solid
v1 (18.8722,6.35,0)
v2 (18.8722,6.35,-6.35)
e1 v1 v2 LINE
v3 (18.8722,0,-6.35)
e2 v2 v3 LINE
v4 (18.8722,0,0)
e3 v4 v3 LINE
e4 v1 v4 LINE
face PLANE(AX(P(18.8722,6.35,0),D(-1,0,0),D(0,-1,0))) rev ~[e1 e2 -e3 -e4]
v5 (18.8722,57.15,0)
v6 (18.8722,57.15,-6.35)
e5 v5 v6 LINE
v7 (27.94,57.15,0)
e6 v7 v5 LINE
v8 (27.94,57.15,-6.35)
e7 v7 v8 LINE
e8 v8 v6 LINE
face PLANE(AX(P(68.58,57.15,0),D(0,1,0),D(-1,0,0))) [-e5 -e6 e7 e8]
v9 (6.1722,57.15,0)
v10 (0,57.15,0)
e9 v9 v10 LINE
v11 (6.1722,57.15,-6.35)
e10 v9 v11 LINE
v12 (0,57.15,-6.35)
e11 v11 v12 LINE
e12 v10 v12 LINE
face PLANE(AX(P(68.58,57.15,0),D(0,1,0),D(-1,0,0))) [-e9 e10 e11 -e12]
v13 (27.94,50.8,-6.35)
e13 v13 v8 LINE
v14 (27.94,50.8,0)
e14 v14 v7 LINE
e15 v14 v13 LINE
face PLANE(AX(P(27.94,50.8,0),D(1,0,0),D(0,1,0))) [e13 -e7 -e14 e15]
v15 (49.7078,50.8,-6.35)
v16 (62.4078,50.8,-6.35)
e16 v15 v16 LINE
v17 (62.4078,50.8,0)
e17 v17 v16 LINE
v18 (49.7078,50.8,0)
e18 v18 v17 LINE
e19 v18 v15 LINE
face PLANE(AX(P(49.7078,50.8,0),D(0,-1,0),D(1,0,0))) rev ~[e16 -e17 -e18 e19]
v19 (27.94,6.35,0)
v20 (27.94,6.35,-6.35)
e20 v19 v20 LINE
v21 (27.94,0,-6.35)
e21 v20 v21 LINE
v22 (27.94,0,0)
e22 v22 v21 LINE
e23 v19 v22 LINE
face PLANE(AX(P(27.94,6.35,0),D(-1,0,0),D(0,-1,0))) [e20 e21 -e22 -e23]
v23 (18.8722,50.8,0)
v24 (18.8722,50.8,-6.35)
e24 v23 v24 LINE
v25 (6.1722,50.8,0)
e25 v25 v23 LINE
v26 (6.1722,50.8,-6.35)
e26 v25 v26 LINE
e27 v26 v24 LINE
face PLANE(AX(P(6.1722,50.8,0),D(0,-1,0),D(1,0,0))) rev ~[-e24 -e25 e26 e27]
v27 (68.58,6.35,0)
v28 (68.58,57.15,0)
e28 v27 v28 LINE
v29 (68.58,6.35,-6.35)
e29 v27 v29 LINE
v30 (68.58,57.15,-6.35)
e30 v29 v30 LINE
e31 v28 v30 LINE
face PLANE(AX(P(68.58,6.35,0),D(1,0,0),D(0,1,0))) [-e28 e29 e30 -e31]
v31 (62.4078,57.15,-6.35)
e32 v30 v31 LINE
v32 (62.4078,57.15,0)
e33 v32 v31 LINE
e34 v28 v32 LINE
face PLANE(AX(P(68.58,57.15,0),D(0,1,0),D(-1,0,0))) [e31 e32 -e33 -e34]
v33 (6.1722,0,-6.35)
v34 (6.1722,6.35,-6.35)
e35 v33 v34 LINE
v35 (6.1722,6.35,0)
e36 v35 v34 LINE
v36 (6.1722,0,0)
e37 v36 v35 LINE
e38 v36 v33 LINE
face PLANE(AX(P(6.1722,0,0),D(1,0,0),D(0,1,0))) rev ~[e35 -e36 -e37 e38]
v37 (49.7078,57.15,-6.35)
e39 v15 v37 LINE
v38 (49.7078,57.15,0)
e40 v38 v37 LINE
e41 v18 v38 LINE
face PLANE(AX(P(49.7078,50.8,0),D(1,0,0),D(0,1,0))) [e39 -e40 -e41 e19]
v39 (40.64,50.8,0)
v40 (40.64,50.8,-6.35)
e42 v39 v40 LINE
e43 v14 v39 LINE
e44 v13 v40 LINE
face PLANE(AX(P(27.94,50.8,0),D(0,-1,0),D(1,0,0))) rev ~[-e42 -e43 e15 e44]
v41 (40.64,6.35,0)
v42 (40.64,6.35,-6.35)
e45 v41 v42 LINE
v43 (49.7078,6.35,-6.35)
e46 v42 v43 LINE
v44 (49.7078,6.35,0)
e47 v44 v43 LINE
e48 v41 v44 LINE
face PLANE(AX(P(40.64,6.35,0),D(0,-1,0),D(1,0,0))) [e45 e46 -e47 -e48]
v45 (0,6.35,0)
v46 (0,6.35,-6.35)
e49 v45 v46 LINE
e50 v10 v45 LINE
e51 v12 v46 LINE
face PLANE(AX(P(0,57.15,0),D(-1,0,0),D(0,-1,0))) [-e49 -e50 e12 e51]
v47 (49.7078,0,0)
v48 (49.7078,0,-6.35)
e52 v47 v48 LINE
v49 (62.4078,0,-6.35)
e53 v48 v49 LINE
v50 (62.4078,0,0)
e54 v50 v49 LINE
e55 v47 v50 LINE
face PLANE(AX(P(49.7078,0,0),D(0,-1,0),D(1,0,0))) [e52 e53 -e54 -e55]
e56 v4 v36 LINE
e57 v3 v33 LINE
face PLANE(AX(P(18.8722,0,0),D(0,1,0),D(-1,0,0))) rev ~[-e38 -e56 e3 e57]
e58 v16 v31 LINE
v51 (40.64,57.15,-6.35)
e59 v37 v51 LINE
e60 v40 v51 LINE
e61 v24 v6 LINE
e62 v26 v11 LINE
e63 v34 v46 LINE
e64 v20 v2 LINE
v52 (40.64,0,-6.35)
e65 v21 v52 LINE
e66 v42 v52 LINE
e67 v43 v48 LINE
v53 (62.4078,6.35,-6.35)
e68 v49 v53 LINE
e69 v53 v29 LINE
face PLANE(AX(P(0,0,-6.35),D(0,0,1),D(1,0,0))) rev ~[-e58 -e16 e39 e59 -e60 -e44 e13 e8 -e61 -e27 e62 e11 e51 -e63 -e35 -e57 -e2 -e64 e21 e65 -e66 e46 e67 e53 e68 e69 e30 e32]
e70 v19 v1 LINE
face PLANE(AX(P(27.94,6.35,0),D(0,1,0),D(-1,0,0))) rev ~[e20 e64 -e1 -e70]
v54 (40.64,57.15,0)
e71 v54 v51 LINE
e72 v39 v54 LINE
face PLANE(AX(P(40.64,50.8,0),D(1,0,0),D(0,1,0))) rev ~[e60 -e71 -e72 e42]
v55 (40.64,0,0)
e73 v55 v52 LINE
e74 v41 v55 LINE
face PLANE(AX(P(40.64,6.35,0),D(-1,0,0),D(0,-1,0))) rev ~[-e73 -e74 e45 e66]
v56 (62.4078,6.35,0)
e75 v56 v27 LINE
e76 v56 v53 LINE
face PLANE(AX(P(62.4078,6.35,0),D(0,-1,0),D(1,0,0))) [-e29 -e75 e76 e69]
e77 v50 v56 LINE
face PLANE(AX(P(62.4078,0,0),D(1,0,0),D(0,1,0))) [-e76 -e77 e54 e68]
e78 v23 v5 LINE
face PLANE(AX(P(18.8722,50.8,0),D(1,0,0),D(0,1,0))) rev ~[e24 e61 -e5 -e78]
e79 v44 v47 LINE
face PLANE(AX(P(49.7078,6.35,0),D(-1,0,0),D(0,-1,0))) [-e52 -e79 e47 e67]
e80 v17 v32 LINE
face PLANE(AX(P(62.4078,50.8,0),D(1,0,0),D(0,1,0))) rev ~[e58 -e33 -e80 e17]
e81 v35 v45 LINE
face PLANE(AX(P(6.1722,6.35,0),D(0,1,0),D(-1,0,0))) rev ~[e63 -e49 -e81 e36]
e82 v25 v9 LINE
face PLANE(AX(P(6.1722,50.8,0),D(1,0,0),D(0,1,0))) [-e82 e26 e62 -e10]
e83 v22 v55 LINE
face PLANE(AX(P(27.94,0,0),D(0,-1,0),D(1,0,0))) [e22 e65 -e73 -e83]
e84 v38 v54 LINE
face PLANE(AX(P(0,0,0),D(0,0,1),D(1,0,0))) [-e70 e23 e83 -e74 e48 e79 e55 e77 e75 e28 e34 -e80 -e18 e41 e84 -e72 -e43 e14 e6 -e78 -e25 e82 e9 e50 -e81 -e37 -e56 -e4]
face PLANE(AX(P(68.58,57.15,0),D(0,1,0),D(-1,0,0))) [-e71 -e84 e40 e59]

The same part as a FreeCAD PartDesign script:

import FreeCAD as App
import Part
import Sketcher

V = App.Vector
Q = App.Units.Quantity


def add_polygon(sketch, points):
    """Adds a closed chain of lines whose ends are joined by coincident constraints."""
    first, n = sketch.GeometryCount, len(points)
    for a, b in zip(points, points[1:] + points[:1]):
        sketch.addGeometry(Part.LineSegment(App.Vector(*a, 0), App.Vector(*b, 0)), False)
    for i in range(n):
        sketch.addConstraint(Sketcher.Constraint("Coincident", first + i, 2, first + (i + 1) % n, 1))

doc = App.newDocument("Part")
params = doc.addObject("Spreadsheet::Sheet", "Params")
for row, (alias, value) in enumerate([
    ("sketch1_height", "2 in"),
    ("sketch1_width", "2.7 in"),
    ("sketch1_width2", "0.5 in"),
    ("sketch1_height2", "0.25 in"),
    ("sketch1_width3", "0.243 in"),
    ("pad1_length", "0.25 in"),
    ("sketch2_width", "0.5 in"),
    ("sketch2_height", "0.25 in"),
    ("pocket1_length", "0.25 in"),
], start=1):
    params.set(f"A{row}", alias)
    params.set(f"B{row}", "=" + value)
    params.setAlias(f"B{row}", alias)

body = doc.addObject("PartDesign::Body", "Body")

sketch1 = body.newObject("Sketcher::SketchObject", "Sketch")
sketch1.AttachmentSupport = (doc.getObject("XY_Plane"), [""])
sketch1.MapMode = "FlatFace"
add_polygon(sketch1, [(62, 6), (69, 6), (69, 57), (0, 57), (0, 6), (6, 6), (6, 0), (19, 0), (19, 6), (28, 6), (28, 0), (41, 0), (41, 6), (50, 6), (50, 0), (62, 0)])
sketch1.addConstraint([
    Sketcher.Constraint("Horizontal", 0),
    Sketcher.Constraint("Vertical", 1),
    Sketcher.Constraint("Horizontal", 2),
    Sketcher.Constraint("Vertical", 3),
    Sketcher.Constraint("Horizontal", 4),
    Sketcher.Constraint("Vertical", 5),
    Sketcher.Constraint("Horizontal", 6),
    Sketcher.Constraint("Vertical", 7),
    Sketcher.Constraint("Horizontal", 8),
    Sketcher.Constraint("Vertical", 9),
    Sketcher.Constraint("Horizontal", 10),
    Sketcher.Constraint("Vertical", 11),
    Sketcher.Constraint("Horizontal", 12),
    Sketcher.Constraint("Vertical", 13),
    Sketcher.Constraint("Horizontal", 14),
    Sketcher.Constraint("Vertical", 15),
    Sketcher.Constraint("PointOnObject", 2, 2, -2),
    Sketcher.Constraint("PointOnObject", 5, 2, -1),
    Sketcher.Constraint("PointOnObject", 9, 2, -1),
    Sketcher.Constraint("PointOnObject", 13, 2, -1),
    Sketcher.Constraint("Horizontal", 0, 2, 3, 2),
    Sketcher.Constraint("Horizontal", 4, 2, 7, 2),
    Sketcher.Constraint("Horizontal", 8, 2, 11, 2),
    Sketcher.Constraint("Equal", 0, 4),
    Sketcher.Constraint("Equal", 6, 10),
    Sketcher.Constraint("Equal", 8, 12),
    Sketcher.Constraint("Equal", 10, 14),
    Sketcher.Constraint("DistanceY", 1, 1, 1, 2, Q("2 in")),
    Sketcher.Constraint("DistanceX", 2, 2, 2, 1, Q("2.7 in")),
    Sketcher.Constraint("DistanceX", 6, 1, 6, 2, Q("0.5 in")),
    Sketcher.Constraint("DistanceY", 5, 2, 5, 1, Q("0.25 in")),
    Sketcher.Constraint("DistanceX", 0, 1, 0, 2, Q("0.243 in")),
])
sketch1.setExpression("Constraints[43]", "Params.sketch1_height")
sketch1.setExpression("Constraints[44]", "Params.sketch1_width")
sketch1.setExpression("Constraints[45]", "Params.sketch1_width2")
sketch1.setExpression("Constraints[46]", "Params.sketch1_height2")
sketch1.setExpression("Constraints[47]", "Params.sketch1_width3")
pad1 = body.newObject("PartDesign::Pad", "Pad")
pad1.Profile = sketch1
pad1.setExpression("Length", "Params.pad1_length")
pad1.Reversed = True

sketch2 = body.newObject("Sketcher::SketchObject", "Sketch001")
sketch2.AttachmentSupport = (doc.getObject("XY_Plane"), [""])
sketch2.MapMode = "FlatFace"
add_polygon(sketch2, [(62, 57), (50, 57), (50, 51), (62, 51)])
add_polygon(sketch2, [(41, 57), (28, 57), (28, 51), (41, 51)])
add_polygon(sketch2, [(6, 57), (6, 51), (19, 51), (19, 57)])
sketch2.addConstraint([
    Sketcher.Constraint("Horizontal", 0),
    Sketcher.Constraint("Vertical", 1),
    Sketcher.Constraint("Horizontal", 2),
    Sketcher.Constraint("Vertical", 3),
    Sketcher.Constraint("Horizontal", 4),
    Sketcher.Constraint("Vertical", 5),
    Sketcher.Constraint("Horizontal", 6),
    Sketcher.Constraint("Vertical", 7),
    Sketcher.Constraint("Vertical", 8),
    Sketcher.Constraint("Horizontal", 9),
    Sketcher.Constraint("Vertical", 10),
    Sketcher.Constraint("Horizontal", 11),
    Sketcher.Constraint("Horizontal", 3, 2, 4, 2),
    Sketcher.Constraint("Horizontal", 2, 2, 5, 2),
    Sketcher.Constraint("Horizontal", 6, 2, 8, 2),
    Sketcher.Constraint("Horizontal", 7, 2, 10, 2),
    Sketcher.Constraint("Equal", 2, 4),
    Sketcher.Constraint("Equal", 6, 9),
    Sketcher.Constraint("DistanceX", 0, 2, 0, 1, Q("0.5 in")),
    Sketcher.Constraint("DistanceY", -1, 1, 1, 2, Q("2 in")),
    Sketcher.Constraint("DistanceY", 1, 2, 1, 1, Q("0.25 in")),
    Sketcher.Constraint("DistanceX", -1, 1, 4, 2, Q("1.1 in")),
    Sketcher.Constraint("DistanceX", -1, 1, 0, 2, Q("1.957 in")),
    Sketcher.Constraint("DistanceX", -1, 1, 8, 2, Q("0.243 in")),
])
sketch2.setExpression("Constraints[30]", "Params.sketch2_width")
sketch2.setExpression("Constraints[32]", "Params.sketch2_height")
pocket1 = body.newObject("PartDesign::Pocket", "Pocket")
pocket1.Profile = sketch2
pocket1.setExpression("Length", "Params.pocket1_length")

doc.recompute()
